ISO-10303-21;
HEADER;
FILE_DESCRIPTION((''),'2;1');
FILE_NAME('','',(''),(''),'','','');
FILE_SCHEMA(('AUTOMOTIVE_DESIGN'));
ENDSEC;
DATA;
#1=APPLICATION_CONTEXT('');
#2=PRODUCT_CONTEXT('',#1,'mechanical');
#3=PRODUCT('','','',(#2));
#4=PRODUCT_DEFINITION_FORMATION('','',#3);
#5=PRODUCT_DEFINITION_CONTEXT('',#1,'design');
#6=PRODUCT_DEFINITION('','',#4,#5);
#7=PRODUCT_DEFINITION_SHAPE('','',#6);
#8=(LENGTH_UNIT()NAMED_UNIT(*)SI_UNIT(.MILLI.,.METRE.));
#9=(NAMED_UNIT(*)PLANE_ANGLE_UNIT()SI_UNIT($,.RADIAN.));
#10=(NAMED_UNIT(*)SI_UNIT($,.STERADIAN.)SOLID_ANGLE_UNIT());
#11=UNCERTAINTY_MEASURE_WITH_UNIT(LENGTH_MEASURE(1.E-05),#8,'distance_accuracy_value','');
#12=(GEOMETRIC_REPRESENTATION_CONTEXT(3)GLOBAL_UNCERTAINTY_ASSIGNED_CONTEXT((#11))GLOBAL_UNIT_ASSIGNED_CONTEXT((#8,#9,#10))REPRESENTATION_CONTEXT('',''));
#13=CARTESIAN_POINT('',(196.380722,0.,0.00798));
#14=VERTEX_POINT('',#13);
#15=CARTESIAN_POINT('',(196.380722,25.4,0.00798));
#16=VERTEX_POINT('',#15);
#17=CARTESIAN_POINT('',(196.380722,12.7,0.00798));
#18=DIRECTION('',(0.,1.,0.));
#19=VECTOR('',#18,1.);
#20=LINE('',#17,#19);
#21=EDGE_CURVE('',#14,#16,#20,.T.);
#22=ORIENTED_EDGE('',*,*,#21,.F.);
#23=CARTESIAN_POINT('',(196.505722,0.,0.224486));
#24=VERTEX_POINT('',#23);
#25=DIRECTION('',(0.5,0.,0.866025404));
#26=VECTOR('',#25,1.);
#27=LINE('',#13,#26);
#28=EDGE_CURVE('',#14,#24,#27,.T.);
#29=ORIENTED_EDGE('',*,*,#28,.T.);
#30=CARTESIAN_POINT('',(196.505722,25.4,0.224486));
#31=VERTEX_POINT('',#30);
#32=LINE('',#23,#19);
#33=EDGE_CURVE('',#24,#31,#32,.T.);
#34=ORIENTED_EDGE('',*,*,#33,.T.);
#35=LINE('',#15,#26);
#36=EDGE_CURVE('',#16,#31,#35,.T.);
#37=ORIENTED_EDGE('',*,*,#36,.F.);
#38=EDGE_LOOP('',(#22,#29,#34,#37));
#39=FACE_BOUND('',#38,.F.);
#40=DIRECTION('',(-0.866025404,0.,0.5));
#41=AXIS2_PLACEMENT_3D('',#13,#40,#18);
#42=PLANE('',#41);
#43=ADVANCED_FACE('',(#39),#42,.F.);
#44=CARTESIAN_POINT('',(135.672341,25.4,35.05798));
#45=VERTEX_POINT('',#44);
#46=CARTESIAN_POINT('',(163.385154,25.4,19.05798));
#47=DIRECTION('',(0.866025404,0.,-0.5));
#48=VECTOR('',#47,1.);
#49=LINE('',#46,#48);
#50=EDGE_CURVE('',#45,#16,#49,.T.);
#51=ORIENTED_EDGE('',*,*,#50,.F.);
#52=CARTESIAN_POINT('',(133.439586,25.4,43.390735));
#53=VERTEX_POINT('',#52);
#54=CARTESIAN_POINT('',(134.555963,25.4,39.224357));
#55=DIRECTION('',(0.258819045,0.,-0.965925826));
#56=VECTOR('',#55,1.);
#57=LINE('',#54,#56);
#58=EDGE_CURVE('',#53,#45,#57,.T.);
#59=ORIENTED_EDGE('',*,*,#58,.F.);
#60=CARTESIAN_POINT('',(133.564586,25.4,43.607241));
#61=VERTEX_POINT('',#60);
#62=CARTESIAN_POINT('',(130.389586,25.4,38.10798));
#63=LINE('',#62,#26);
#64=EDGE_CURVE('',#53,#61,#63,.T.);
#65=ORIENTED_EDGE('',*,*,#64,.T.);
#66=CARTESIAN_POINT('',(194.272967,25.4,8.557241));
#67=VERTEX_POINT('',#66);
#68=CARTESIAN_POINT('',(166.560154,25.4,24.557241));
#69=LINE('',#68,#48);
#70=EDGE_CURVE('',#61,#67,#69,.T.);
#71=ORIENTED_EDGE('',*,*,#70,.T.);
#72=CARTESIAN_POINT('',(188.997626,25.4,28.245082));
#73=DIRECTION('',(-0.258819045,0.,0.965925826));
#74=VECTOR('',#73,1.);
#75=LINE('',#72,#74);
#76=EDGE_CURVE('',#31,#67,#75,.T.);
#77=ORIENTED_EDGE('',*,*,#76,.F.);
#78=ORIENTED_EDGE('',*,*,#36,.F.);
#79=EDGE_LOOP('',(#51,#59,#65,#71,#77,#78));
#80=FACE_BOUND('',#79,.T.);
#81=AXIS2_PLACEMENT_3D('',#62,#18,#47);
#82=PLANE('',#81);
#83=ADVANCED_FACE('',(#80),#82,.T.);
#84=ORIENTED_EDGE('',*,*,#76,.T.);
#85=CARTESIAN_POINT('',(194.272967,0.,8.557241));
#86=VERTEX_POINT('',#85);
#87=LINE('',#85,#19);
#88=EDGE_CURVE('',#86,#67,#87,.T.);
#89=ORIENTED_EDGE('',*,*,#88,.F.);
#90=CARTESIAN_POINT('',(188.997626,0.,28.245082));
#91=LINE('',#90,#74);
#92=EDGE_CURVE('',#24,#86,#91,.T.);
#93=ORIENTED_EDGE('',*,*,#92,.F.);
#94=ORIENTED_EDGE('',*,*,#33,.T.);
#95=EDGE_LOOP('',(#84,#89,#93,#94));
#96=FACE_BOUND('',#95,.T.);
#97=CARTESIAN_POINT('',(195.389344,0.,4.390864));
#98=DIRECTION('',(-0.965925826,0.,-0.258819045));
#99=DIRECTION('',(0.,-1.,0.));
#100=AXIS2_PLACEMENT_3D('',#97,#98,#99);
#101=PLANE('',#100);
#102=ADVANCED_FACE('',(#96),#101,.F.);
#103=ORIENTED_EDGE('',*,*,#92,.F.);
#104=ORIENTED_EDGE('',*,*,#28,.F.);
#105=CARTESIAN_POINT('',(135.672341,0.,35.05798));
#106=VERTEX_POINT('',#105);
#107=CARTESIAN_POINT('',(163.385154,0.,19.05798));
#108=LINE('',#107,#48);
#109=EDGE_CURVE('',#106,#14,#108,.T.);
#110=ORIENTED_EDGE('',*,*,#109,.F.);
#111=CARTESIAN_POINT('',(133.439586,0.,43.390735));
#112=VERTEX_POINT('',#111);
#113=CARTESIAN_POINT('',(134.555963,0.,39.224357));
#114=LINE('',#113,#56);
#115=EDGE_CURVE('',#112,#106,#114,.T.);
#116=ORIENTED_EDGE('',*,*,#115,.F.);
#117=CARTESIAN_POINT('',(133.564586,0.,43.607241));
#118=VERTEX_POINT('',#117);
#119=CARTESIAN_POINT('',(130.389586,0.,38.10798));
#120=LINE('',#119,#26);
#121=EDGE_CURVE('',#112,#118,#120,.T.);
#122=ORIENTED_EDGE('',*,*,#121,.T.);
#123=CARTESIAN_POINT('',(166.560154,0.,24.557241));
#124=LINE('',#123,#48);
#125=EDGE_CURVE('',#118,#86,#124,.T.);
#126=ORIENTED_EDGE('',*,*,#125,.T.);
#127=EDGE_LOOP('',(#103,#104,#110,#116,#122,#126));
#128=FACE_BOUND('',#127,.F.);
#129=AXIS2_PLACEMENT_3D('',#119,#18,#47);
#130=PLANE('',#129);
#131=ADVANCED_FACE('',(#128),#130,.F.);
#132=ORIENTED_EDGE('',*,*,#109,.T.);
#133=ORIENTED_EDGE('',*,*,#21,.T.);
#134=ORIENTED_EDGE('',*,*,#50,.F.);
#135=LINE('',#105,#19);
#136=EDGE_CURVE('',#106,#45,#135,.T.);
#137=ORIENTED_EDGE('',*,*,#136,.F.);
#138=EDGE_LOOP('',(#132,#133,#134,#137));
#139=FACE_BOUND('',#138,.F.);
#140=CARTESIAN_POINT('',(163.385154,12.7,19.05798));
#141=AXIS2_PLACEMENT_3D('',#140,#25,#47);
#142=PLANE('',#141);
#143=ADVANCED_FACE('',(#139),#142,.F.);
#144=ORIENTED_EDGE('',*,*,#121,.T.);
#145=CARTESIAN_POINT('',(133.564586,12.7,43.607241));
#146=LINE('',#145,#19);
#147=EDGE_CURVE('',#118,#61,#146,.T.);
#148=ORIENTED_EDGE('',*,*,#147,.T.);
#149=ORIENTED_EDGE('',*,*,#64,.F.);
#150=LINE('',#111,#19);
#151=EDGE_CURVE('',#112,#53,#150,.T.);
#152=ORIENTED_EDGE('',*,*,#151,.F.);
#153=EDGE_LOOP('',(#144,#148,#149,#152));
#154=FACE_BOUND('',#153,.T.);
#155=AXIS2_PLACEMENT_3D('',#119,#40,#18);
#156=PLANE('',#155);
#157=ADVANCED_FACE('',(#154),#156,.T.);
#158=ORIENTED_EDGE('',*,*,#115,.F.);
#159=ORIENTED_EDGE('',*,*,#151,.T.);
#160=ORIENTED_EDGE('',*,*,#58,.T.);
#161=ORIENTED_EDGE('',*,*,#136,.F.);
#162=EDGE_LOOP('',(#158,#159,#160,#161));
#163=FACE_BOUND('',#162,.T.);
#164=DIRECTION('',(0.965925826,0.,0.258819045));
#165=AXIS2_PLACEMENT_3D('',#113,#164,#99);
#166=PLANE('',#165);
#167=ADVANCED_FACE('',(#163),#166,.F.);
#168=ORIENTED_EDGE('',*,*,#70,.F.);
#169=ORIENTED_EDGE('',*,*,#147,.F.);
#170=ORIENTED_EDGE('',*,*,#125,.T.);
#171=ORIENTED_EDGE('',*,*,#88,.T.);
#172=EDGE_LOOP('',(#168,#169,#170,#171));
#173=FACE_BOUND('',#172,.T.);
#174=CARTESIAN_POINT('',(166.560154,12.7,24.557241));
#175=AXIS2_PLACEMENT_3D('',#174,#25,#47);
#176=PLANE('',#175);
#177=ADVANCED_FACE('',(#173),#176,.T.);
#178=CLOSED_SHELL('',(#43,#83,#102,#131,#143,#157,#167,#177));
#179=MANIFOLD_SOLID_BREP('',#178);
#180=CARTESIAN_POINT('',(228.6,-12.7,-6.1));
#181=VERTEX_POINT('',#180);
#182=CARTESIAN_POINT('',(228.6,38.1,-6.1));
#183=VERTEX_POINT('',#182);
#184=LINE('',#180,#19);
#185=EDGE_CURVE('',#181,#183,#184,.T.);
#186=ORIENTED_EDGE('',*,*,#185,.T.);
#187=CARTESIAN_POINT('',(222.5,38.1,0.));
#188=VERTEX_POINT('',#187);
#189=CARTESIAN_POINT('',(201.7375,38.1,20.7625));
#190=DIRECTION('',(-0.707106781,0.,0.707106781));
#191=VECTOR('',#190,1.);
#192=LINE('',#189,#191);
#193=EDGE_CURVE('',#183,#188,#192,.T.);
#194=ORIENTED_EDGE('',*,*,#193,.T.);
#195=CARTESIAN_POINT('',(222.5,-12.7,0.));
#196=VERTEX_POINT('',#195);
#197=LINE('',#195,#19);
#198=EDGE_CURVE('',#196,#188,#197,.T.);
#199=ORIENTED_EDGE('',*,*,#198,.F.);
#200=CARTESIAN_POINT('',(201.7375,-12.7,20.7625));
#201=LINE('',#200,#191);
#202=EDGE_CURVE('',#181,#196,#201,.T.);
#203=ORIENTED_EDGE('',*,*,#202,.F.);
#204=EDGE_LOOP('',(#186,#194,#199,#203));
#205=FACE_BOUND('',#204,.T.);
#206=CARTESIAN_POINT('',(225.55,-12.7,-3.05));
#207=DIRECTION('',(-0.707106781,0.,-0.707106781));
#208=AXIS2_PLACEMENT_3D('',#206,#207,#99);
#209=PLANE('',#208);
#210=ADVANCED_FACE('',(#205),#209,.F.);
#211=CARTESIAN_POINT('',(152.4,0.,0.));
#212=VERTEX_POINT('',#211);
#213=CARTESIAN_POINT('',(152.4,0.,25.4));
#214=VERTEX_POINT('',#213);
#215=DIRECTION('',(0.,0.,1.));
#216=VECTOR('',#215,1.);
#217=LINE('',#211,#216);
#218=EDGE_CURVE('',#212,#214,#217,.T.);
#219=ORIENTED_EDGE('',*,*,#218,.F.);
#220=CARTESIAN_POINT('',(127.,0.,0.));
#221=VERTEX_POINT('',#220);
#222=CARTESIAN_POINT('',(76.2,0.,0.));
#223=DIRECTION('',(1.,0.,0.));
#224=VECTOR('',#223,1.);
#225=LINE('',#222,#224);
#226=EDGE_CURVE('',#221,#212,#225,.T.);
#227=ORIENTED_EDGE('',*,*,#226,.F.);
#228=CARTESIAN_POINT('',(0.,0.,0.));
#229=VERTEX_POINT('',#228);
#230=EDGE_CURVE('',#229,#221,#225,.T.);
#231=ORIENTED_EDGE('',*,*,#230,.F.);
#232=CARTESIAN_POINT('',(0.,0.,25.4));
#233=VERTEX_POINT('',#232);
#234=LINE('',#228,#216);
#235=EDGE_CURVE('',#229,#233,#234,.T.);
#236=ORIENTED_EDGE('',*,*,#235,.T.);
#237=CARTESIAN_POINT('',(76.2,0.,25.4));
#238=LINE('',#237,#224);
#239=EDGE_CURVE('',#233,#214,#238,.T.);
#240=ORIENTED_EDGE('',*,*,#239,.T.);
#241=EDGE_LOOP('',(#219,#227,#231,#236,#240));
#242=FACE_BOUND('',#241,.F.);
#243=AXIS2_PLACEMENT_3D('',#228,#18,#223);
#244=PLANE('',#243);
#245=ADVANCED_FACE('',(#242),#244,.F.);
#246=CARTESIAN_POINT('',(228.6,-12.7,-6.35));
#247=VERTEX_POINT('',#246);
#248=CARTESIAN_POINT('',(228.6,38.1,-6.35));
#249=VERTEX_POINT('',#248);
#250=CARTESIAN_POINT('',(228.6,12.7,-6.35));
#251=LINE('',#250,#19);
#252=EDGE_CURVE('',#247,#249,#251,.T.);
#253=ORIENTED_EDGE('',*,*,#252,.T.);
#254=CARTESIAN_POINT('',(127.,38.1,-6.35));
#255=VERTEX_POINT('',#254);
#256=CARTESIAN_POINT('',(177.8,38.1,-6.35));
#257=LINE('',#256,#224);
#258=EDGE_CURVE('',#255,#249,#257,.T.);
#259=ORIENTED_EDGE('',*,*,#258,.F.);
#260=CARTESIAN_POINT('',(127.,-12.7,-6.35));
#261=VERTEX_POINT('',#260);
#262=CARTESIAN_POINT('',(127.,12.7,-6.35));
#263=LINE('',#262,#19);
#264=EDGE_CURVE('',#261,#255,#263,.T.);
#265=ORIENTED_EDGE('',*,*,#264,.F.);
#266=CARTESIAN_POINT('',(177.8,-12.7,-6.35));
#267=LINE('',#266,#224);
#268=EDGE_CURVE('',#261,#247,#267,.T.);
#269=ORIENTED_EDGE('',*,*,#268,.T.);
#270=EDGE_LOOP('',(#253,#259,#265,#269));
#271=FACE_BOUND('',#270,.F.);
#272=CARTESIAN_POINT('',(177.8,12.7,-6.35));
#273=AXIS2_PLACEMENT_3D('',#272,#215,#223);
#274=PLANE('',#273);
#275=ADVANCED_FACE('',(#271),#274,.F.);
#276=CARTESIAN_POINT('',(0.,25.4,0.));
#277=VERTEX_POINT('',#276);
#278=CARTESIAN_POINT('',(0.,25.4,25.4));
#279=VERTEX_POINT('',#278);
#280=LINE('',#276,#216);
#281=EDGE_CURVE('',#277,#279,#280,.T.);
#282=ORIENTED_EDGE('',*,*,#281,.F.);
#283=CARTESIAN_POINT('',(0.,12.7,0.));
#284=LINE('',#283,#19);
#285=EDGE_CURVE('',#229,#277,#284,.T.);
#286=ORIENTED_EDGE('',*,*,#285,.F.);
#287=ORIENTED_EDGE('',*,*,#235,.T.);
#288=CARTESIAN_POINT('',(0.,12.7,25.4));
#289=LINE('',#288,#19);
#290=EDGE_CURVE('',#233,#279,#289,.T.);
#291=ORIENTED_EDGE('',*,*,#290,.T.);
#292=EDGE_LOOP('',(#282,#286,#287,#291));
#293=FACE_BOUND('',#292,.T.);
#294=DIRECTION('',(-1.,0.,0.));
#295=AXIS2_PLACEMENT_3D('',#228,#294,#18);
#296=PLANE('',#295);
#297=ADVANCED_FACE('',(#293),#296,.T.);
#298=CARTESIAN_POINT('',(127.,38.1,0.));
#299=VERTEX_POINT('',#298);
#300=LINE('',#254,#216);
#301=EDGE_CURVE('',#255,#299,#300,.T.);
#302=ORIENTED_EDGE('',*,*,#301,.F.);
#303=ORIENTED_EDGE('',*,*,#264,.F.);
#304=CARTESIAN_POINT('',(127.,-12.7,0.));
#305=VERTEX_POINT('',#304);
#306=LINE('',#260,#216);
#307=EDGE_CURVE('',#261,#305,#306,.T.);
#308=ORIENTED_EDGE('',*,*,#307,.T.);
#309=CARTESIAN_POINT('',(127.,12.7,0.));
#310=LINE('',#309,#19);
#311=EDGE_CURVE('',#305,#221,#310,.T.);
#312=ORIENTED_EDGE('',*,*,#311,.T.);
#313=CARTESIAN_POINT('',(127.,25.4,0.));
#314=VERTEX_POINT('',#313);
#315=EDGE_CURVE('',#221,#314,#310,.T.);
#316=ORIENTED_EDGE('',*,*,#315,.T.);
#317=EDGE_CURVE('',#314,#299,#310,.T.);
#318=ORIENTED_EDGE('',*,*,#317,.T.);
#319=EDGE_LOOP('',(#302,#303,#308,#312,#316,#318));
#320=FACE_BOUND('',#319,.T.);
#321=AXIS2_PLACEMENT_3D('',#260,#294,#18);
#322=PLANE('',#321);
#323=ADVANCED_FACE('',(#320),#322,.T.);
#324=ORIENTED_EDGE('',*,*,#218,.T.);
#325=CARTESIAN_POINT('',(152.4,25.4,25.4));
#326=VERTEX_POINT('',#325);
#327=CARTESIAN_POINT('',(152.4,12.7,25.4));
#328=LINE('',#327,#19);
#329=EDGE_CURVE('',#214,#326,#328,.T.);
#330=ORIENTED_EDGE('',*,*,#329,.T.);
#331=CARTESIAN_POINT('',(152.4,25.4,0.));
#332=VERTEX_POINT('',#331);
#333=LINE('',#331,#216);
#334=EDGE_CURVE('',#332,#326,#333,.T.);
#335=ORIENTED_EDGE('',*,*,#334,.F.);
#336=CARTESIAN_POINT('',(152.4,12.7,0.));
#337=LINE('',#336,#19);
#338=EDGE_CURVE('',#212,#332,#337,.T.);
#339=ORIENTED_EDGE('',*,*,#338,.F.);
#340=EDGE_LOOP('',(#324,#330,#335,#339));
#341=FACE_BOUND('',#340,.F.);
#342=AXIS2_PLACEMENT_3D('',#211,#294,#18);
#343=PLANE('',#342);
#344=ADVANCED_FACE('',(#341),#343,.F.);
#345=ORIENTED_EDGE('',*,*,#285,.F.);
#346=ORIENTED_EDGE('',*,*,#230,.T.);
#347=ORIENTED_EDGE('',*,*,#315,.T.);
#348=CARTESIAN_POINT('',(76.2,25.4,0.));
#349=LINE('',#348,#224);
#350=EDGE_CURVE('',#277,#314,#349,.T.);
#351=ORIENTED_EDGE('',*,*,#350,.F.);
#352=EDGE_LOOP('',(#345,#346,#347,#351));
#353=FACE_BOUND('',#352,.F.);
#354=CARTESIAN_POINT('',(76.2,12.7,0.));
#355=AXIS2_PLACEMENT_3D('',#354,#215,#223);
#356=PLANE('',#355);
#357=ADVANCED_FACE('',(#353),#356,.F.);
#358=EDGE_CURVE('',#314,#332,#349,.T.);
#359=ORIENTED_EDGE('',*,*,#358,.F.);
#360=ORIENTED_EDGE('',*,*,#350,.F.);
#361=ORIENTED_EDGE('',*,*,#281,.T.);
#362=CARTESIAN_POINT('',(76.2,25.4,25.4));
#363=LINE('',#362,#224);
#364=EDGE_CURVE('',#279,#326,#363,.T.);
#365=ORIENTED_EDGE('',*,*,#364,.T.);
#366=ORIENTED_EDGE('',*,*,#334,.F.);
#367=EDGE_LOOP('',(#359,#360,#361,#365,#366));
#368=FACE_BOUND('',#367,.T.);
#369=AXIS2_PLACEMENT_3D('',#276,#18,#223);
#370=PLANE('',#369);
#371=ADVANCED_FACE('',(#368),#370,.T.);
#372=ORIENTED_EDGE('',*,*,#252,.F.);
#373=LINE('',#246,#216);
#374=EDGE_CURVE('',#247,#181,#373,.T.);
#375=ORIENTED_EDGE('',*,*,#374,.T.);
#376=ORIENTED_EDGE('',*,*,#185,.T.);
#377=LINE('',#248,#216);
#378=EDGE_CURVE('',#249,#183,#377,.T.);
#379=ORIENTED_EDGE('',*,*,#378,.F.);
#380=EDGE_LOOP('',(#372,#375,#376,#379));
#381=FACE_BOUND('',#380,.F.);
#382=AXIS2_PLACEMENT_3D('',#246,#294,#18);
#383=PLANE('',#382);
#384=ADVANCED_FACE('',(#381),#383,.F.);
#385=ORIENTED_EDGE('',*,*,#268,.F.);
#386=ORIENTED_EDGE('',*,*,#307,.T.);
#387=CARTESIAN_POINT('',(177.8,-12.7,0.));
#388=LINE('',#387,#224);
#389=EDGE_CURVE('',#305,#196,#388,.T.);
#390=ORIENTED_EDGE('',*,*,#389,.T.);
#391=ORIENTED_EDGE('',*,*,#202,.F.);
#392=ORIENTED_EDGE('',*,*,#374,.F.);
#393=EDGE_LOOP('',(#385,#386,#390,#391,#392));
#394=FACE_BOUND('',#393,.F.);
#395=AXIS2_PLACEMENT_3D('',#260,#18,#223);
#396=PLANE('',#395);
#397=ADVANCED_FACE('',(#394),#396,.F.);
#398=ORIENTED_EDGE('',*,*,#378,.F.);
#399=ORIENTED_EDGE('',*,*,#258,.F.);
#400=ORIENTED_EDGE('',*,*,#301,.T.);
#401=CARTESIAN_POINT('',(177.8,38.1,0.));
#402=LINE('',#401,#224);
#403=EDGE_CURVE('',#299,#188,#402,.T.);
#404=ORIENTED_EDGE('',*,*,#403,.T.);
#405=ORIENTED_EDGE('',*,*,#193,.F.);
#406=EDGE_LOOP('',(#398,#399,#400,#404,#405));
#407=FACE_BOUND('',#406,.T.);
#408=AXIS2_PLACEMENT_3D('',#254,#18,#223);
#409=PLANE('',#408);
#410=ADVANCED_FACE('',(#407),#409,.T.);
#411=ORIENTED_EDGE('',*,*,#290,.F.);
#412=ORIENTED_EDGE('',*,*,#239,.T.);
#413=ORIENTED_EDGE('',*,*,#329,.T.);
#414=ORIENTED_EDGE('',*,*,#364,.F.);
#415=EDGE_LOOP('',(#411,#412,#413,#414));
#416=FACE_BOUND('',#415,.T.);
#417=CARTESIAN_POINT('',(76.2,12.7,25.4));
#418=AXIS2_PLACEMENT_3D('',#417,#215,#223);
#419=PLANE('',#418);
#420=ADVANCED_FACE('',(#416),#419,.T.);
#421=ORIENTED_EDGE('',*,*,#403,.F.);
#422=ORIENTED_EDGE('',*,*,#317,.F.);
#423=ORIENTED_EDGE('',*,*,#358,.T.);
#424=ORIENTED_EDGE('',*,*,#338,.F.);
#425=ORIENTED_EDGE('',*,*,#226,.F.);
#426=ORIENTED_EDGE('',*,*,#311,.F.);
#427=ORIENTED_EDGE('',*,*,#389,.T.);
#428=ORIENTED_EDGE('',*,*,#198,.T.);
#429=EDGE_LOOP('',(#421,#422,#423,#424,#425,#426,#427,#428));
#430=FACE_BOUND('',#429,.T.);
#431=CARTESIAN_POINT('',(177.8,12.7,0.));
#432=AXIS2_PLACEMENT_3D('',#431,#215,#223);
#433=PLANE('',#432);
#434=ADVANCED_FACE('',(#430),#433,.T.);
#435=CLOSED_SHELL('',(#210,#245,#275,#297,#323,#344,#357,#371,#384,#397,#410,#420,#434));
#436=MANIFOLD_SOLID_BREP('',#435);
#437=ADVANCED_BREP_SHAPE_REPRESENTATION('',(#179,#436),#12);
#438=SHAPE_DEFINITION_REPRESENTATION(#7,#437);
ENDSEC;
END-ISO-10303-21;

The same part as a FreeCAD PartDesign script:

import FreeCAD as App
import Part
import Sketcher

V = App.Vector
Q = App.Units.Quantity


def edges_at(feature, points):
    """Names of the edges that pass closest to the given points."""
    edges = feature.Shape.Edges
    near = lambda p: min(range(len(edges)), key=lambda i: edges[i].distToShape(Part.Vertex(*p))[0])
    return sorted({f"Edge{near(p) + 1}" for p in points})


def add_polygon(sketch, points):
    """Adds a closed chain of lines whose ends are joined by coincident constraints."""
    first, n = sketch.GeometryCount, len(points)
    for a, b in zip(points, points[1:] + points[:1]):
        sketch.addGeometry(Part.LineSegment(App.Vector(*a, 0), App.Vector(*b, 0)), False)
    for i in range(n):
        sketch.addConstraint(Sketcher.Constraint("Coincident", first + i, 2, first + (i + 1) % n, 1))

doc = App.newDocument("Part")
params = doc.addObject("Spreadsheet::Sheet", "Params")
for row, (alias, value) in enumerate([
    ("sketch1_width", "3 in"),
    ("sketch1_height", "1 in"),
    ("pad1_length", "0.25 in"),
    ("chamfer_size", "6.1 mm"),
    ("sketch2_width", "4 in"),
    ("sketch2_height", "2 in"),
    ("pad2_length", "0.25 in"),
    ("chamfer2_size", "6.1 mm"),
    ("sketch3_width", "6 in"),
    ("sketch3_height", "1 in"),
    ("pad3_length", "1 in"),
], start=1):
    params.set(f"A{row}", alias)
    params.set(f"B{row}", "=" + value)
    params.setAlias(f"B{row}", alias)

body = doc.addObject("PartDesign::Body", "Body")

# Sketch on XY plane
sketch1 = body.newObject("Sketcher::SketchObject", "Sketch")
sketch1.AttachmentSupport = (doc.getObject("XY_Plane"), [""])
sketch1.MapMode = "FlatFace"
add_polygon(sketch1, [(0, 25), (0, 0), (76, 0), (76, 25)])  # lines 0-3
sketch1.addConstraint(Sketcher.Constraint("Vertical", 0))
sketch1.addConstraint(Sketcher.Constraint("Horizontal", 1))
sketch1.addConstraint(Sketcher.Constraint("Vertical", 2))
sketch1.addConstraint(Sketcher.Constraint("Horizontal", 3))
sketch1.addConstraint(Sketcher.Constraint("Coincident", 0, 2, -1, 1))
sketch1.addConstraint(Sketcher.Constraint("DistanceX", 1, 1, 1, 2, Q("3 in")))
sketch1.addConstraint(Sketcher.Constraint("DistanceY", 0, 2, 0, 1, Q("1 in")))
sketch1.setExpression("Constraints[9]", "Params.sketch1_width")
sketch1.setExpression("Constraints[10]", "Params.sketch1_height")
pad1 = body.newObject("PartDesign::Pad", "Pad")
pad1.Profile = sketch1
pad1.setExpression("Length", "Params.pad1_length")
body2 = doc.addObject("PartDesign::Body", "Body001")
doc.recompute()

body.Placement = App.Placement(V(130.389586, -0.875268, 38.10798), App.Rotation(V(0, 1, 0), 30))
boolean = body2.newObject("PartDesign::Boolean", "Boolean")
boolean.Type = "Fuse"
boolean.addObjects([body])
doc.recompute()

chamfer = body2.newObject("PartDesign::Chamfer", "Chamfer")
chamfer.Base = (boolean, edges_at(boolean, [(130.39, 11.825, 38.108), (199.556, 11.825, 5.507)]))
chamfer.setExpression("Size", "Params.chamfer_size")
body3 = doc.addObject("PartDesign::Body", "Body002")
doc.recompute()

body2.Placement = App.Placement(V(0, 0.875268, 0), App.Rotation(V(0, 0, 1), 0))
boolean2 = body3.newObject("PartDesign::Boolean", "Boolean001")
boolean2.Type = "Fuse"
boolean2.addObjects([body2])
body4 = doc.addObject("PartDesign::Body", "Body003")

# Sketch on XY plane
sketch2 = body4.newObject("Sketcher::SketchObject", "Sketch001")
sketch2.AttachmentSupport = (doc.getObject("XY_Plane003"), [""])
sketch2.MapMode = "FlatFace"
sketch2.AttachmentOffset = App.Placement(V(0, 0, -0.25 * 25.4), App.Rotation())
add_polygon(sketch2, [(127, 38), (127, -13), (229, -13), (229, 38)])  # lines 0-3
sketch2.addConstraint(Sketcher.Constraint("Vertical", 0))
sketch2.addConstraint(Sketcher.Constraint("Horizontal", 1))
sketch2.addConstraint(Sketcher.Constraint("Vertical", 2))
sketch2.addConstraint(Sketcher.Constraint("Horizontal", 3))
sketch2.addConstraint(Sketcher.Constraint("DistanceX", 1, 1, 1, 2, Q("4 in")))
sketch2.addConstraint(Sketcher.Constraint("DistanceY", 0, 2, 0, 1, Q("2 in")))
sketch2.addConstraint(Sketcher.Constraint("DistanceX", -1, 1, 0, 2, Q("5 in")))
sketch2.addConstraint(Sketcher.Constraint("DistanceY", 0, 2, -1, 1, Q("0.5 in")))
sketch2.setExpression("Constraints[8]", "Params.sketch2_width")
sketch2.setExpression("Constraints[9]", "Params.sketch2_height")
pad2 = body4.newObject("PartDesign::Pad", "Pad001")
pad2.Profile = sketch2
pad2.setExpression("Length", "Params.pad2_length")
doc.recompute()

chamfer2 = body4.newObject("PartDesign::Chamfer", "Chamfer001")
chamfer2.Base = (pad2, edges_at(pad2, [(228.6, 12.7, 0)]))
chamfer2.setExpression("Size", "Params.chamfer2_size")
body5 = doc.addObject("PartDesign::Body", "Body004")
body5.AllowCompound = True

# Sketch on XY plane
sketch3 = body5.newObject("Sketcher::SketchObject", "Sketch002")
sketch3.AttachmentSupport = (doc.getObject("XY_Plane004"), [""])
sketch3.MapMode = "FlatFace"
add_polygon(sketch3, [(0, 25), (0, 0), (152, 0), (152, 25)])  # lines 0-3
sketch3.addConstraint(Sketcher.Constraint("Vertical", 0))
sketch3.addConstraint(Sketcher.Constraint("Horizontal", 1))
sketch3.addConstraint(Sketcher.Constraint("Vertical", 2))
sketch3.addConstraint(Sketcher.Constraint("Horizontal", 3))
sketch3.addConstraint(Sketcher.Constraint("Coincident", 0, 2, -1, 1))
sketch3.addConstraint(Sketcher.Constraint("DistanceX", 1, 1, 1, 2, Q("6 in")))
sketch3.addConstraint(Sketcher.Constraint("DistanceY", 0, 2, 0, 1, Q("1 in")))
sketch3.setExpression("Constraints[9]", "Params.sketch3_width")
sketch3.setExpression("Constraints[10]", "Params.sketch3_height")
pad3 = body5.newObject("PartDesign::Pad", "Pad002")
pad3.Profile = sketch3
pad3.setExpression("Length", "Params.pad3_length")
doc.recompute()

boolean3 = body5.newObject("PartDesign::Boolean", "Boolean002")
boolean3.Type = "Fuse"
boolean3.addObjects([body3])
doc.recompute()

boolean4 = body5.newObject("PartDesign::Boolean", "Boolean003")
boolean4.Type = "Fuse"
boolean4.addObjects([body4])

doc.recompute()
